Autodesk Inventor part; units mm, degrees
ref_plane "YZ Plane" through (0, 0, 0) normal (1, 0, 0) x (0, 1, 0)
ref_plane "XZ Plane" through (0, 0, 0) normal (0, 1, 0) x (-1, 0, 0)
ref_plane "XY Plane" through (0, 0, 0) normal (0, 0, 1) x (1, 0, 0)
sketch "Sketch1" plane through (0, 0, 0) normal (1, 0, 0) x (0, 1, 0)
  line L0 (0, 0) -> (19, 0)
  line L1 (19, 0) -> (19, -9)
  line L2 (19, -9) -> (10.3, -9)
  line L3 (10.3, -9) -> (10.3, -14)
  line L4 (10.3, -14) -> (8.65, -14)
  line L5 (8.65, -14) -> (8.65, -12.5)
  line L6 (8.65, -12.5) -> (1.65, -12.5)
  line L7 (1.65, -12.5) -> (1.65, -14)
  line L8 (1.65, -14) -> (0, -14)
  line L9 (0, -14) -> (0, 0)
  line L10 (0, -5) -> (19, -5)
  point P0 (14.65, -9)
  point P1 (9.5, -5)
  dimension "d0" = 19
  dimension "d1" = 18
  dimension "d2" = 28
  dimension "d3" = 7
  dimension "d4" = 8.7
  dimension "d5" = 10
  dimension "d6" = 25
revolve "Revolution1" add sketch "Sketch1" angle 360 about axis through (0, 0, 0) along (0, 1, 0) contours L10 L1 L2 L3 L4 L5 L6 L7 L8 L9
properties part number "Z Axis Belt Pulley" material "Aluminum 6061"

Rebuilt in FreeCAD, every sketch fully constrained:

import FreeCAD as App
import Part
import Sketcher

V = App.Vector

doc = App.newDocument("Part")
body = doc.addObject("PartDesign::Body", "Body")

# Sketch on YZ plane
sketch1 = body.newObject("Sketcher::SketchObject", "Sketch")
sketch1.AttachmentSupport = (doc.getObject("YZ_Plane"), [""])
sketch1.MapMode = "FlatFace"
sketch1.addGeometry([
    Part.LineSegment(V(19, -5, 0), V(0, -5, 0)),  # 0
    Part.LineSegment(V(0, -5, 0), V(0, -14, 0)),  # 1
    Part.LineSegment(V(0, -14, 0), V(1.6, -14, 0)),  # 2
    Part.LineSegment(V(1.6, -14, 0), V(1.6, -12.5, 0)),  # 3
    Part.LineSegment(V(1.6, -12.5, 0), V(8.7, -12.5, 0)),  # 4
    Part.LineSegment(V(8.7, -12.5, 0), V(8.7, -14, 0)),  # 5
    Part.LineSegment(V(8.7, -14, 0), V(10.3, -14, 0)),  # 6
    Part.LineSegment(V(10.3, -14, 0), V(10.3, -9, 0)),  # 7
    Part.LineSegment(V(10.3, -9, 0), V(19, -9, 0)),  # 8
    Part.LineSegment(V(19, -9, 0), V(19, -5, 0)),  # 9
], False)
sketch1.addConstraint([
    Sketcher.Constraint("Coincident", 0, 2, 1, 1),
    Sketcher.Constraint("Coincident", 1, 2, 2, 1),
    Sketcher.Constraint("Coincident", 2, 2, 3, 1),
    Sketcher.Constraint("Coincident", 3, 2, 4, 1),
    Sketcher.Constraint("Coincident", 4, 2, 5, 1),
    Sketcher.Constraint("Coincident", 5, 2, 6, 1),
    Sketcher.Constraint("Coincident", 6, 2, 7, 1),
    Sketcher.Constraint("Coincident", 7, 2, 8, 1),
    Sketcher.Constraint("Coincident", 8, 2, 9, 1),
    Sketcher.Constraint("Coincident", 9, 2, 0, 1),
    Sketcher.Constraint("Horizontal", 0),
    Sketcher.Constraint("Vertical", 1),
    Sketcher.Constraint("Horizontal", 2),
    Sketcher.Constraint("Vertical", 3),
    Sketcher.Constraint("Horizontal", 4),
    Sketcher.Constraint("Vertical", 5),
    Sketcher.Constraint("Horizontal", 6),
    Sketcher.Constraint("Vertical", 7),
    Sketcher.Constraint("Horizontal", 8),
    Sketcher.Constraint("Vertical", 9),
    Sketcher.Constraint("PointOnObject", 0, 2, -2),
    Sketcher.Constraint("Horizontal", 2, 2, 5, 2),
    Sketcher.Constraint("Equal", 2, 6),
    Sketcher.Constraint("DistanceX", 0, 2, 0, 1, 19.0),
    Sketcher.Constraint("DistanceX", 4, 1, 4, 2, 7.0),
    Sketcher.Constraint("DistanceX", 8, 1, 8, 2, 8.7),
    Sketcher.Constraint("DistanceY", 1, 2, 1, 1, 9.0),
    Sketcher.Constraint("DistanceY", 7, 1, 7, 2, 5.0),
    Sketcher.Constraint("DistanceY", 3, 1, 3, 2, 1.5),
    Sketcher.Constraint("DistanceY", 0, 2, -1, 1, 5.0),
])
revolution = body.newObject("PartDesign::Revolution", "Revolution")
revolution.Profile = sketch1
revolution.ReferenceAxis = (sketch1, ["H_Axis"])
revolution.Angle = 360

doc.recompute()
